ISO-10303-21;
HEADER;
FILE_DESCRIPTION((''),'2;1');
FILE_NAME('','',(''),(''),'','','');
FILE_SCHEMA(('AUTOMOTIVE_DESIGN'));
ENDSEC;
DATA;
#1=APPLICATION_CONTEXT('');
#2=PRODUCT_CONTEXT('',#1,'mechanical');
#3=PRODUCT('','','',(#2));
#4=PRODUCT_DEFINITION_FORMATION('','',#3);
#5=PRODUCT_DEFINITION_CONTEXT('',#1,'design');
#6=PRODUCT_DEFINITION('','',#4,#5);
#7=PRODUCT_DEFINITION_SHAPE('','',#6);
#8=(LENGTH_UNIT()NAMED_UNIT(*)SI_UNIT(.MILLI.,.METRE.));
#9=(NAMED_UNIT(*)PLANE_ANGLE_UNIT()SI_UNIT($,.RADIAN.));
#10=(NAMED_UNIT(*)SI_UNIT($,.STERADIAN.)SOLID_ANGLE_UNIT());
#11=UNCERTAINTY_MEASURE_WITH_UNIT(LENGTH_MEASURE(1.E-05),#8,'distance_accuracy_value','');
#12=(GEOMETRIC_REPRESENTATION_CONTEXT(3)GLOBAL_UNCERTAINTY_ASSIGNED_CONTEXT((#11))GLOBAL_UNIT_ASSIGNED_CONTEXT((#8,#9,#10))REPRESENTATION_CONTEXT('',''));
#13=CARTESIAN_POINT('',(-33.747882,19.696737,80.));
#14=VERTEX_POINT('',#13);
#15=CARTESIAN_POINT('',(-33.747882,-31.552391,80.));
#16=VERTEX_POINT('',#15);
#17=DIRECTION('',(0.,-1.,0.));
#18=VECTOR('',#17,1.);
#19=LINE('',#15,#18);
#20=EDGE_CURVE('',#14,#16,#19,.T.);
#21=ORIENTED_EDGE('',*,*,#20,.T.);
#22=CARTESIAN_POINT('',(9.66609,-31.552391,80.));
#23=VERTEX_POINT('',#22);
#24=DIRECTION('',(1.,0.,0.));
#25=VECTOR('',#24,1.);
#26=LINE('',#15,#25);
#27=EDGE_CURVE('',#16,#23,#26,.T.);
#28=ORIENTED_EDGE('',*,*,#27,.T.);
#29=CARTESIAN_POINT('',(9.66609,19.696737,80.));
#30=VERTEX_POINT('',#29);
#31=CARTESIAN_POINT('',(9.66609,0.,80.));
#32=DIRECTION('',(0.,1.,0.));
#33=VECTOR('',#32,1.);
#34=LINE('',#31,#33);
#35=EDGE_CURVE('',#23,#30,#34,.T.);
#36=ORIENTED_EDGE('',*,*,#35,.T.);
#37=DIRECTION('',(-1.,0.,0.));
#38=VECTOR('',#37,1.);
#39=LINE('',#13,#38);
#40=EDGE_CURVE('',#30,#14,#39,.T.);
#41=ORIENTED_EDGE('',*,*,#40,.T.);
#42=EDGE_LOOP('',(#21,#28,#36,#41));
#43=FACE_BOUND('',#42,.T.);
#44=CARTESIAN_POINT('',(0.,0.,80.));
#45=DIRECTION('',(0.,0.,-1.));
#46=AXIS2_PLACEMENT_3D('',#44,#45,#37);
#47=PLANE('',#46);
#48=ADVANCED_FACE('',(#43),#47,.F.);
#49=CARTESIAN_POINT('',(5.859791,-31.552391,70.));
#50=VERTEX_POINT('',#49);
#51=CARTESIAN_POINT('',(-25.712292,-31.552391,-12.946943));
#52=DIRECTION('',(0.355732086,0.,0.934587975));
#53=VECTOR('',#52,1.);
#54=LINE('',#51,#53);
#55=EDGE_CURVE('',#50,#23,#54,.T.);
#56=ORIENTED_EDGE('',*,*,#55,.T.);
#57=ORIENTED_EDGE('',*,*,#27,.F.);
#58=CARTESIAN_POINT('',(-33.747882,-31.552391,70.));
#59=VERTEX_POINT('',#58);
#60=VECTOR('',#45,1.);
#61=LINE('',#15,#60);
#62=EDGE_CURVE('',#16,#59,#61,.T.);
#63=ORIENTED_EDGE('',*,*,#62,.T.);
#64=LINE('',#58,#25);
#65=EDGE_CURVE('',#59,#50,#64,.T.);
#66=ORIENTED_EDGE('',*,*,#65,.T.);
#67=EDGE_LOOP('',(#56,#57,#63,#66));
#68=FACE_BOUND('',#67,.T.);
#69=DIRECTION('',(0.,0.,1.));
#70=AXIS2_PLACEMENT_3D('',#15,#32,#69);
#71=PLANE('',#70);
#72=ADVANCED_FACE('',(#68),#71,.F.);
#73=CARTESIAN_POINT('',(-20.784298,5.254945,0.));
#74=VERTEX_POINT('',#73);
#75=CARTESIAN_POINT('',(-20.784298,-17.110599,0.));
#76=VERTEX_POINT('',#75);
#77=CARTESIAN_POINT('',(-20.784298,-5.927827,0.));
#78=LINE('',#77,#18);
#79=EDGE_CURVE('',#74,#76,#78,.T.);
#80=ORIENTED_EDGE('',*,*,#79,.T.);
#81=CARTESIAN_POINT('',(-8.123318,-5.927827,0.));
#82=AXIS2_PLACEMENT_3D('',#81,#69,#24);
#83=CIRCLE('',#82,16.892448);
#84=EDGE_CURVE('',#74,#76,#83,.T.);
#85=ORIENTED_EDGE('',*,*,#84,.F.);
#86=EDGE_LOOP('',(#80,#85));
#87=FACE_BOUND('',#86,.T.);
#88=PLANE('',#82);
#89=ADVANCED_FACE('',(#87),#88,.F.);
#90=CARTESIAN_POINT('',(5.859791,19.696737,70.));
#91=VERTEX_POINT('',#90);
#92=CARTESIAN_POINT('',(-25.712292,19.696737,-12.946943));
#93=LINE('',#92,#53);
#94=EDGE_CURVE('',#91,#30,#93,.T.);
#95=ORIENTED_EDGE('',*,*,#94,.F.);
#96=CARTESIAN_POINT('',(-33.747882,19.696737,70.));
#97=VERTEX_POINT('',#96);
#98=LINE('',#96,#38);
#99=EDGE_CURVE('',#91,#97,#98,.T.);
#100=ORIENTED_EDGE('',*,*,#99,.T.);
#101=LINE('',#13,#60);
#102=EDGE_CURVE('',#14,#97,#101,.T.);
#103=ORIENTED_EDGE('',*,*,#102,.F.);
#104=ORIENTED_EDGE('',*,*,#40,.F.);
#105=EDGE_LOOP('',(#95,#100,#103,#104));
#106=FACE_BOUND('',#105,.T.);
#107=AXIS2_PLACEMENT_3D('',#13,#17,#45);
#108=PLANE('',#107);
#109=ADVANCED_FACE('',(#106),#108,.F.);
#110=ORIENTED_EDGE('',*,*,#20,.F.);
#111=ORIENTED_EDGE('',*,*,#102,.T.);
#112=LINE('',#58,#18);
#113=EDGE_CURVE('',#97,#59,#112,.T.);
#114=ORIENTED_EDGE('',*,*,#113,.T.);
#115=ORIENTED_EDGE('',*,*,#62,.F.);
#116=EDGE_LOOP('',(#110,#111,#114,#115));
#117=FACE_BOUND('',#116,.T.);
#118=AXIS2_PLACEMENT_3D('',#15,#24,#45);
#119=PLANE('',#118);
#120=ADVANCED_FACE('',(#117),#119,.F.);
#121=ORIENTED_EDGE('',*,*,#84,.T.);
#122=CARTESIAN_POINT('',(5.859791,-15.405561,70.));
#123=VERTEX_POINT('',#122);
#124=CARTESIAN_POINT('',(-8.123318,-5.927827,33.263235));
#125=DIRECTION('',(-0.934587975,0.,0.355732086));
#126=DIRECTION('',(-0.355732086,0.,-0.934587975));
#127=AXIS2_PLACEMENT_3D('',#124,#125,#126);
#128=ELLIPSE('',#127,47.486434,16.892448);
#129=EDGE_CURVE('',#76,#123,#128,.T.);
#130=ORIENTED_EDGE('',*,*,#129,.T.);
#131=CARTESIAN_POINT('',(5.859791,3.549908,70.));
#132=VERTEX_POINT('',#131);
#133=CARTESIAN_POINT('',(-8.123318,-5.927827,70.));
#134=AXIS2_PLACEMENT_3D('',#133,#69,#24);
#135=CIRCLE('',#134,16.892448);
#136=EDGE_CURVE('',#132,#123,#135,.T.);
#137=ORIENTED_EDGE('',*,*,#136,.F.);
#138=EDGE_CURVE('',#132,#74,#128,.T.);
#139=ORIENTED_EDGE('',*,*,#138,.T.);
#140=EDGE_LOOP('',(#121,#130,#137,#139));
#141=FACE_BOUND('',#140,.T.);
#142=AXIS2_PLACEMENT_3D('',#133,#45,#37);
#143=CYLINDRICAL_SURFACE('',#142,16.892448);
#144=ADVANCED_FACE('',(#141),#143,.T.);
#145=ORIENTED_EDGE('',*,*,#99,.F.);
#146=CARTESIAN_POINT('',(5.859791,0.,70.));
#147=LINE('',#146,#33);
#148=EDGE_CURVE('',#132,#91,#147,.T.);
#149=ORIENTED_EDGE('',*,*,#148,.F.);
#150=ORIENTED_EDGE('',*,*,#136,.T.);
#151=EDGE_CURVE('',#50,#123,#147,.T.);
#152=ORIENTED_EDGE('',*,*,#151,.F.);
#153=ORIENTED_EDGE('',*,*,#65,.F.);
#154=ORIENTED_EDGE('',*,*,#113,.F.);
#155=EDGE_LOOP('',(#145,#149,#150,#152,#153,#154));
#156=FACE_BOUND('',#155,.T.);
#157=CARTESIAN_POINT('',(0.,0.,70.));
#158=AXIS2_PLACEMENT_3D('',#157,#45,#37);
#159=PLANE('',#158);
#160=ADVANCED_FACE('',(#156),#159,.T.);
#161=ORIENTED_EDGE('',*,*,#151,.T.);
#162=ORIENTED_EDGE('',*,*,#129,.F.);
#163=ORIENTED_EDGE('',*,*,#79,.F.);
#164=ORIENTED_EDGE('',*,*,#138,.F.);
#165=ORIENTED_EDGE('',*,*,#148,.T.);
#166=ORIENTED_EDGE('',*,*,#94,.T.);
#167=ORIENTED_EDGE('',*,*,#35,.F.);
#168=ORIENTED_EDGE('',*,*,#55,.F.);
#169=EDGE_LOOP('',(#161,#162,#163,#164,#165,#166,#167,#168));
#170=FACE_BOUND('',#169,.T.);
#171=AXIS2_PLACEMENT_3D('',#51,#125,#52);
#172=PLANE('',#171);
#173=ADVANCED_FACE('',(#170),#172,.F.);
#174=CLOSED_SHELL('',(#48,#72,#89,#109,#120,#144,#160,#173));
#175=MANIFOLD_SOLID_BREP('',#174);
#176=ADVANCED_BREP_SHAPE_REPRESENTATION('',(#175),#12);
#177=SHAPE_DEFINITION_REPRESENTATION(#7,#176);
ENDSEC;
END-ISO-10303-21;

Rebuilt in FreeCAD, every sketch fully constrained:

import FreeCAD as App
import Part
import Sketcher


def add_polygon(sketch, points):
    """Adds a closed chain of lines whose ends are joined by coincident constraints."""
    first, n = sketch.GeometryCount, len(points)
    for a, b in zip(points, points[1:] + points[:1]):
        sketch.addGeometry(Part.LineSegment(App.Vector(*a, 0), App.Vector(*b, 0)), False)
    for i in range(n):
        sketch.addConstraint(Sketcher.Constraint("Coincident", first + i, 2, first + (i + 1) % n, 1))

doc = App.newDocument("Part")
params = doc.addObject("Spreadsheet::Sheet", "Params")
for row, (alias, value) in enumerate([
    ("pad1_length", "70 mm"),
    ("pad2_length", "10 mm"),
], start=1):
    params.set(f"A{row}", alias)
    params.set(f"B{row}", "=" + value)
    params.setAlias(f"B{row}", alias)

body = doc.addObject("PartDesign::Body", "Body")

sketch1 = body.newObject("Sketcher::SketchObject", "Sketch")
sketch1.AttachmentSupport = (doc.getObject("XY_Plane"), [""])
sketch1.MapMode = "FlatFace"
sketch1.addGeometry(Part.Circle(App.Vector(-8, -6, 0), App.Vector(0, 0, 1), 17), False)
sketch1.addConstraint([
    Sketcher.Constraint("Diameter", 0, 33.784897),
    Sketcher.Constraint("DistanceX", 0, 3, -1, 1, 8.123318),
    Sketcher.Constraint("DistanceY", 0, 3, -1, 1, 5.927827),
])
pad1 = body.newObject("PartDesign::Pad", "Pad")
pad1.Profile = sketch1
pad1.setExpression("Length", "Params.pad1_length")

sketch2 = body.newObject("Sketcher::SketchObject", "Sketch001")
sketch2.AttachmentSupport = (doc.getObject("XY_Plane"), [""])
sketch2.MapMode = "FlatFace"
sketch2.AttachmentOffset = App.Placement(App.Vector(0, 0, 70), App.Rotation())
add_polygon(sketch2, [(-34, 20), (-34, -32), (18, -32), (18, 20)])
sketch2.addConstraint([
    Sketcher.Constraint("Vertical", 0),
    Sketcher.Constraint("Horizontal", 1),
    Sketcher.Constraint("Vertical", 2),
    Sketcher.Constraint("Horizontal", 3),
    Sketcher.Constraint("Equal", 3, 0),
    Sketcher.Constraint("DistanceX", 1, 1, 1, 2, 51.249128),
    Sketcher.Constraint("DistanceY", 0, 2, -1, 1, 31.552391),
    Sketcher.Constraint("DistanceX", 0, 2, -1, 1, 33.747882),
])
pad2 = body.newObject("PartDesign::Pad", "Pad001")
pad2.Profile = sketch2
pad2.setExpression("Length", "Params.pad2_length")

sketch3 = body.newObject("Sketcher::SketchObject", "Sketch002")
sketch3.AttachmentSupport = (doc.getObject("XZ_Plane"), [""])
sketch3.MapMode = "FlatFace"
add_polygon(sketch3, [(-26, -13), (19, 104), (40, -9)])
sketch3.addConstraint([
    Sketcher.Constraint("DistanceY", 2, 2, 0, 2, 117.367098),
    Sketcher.Constraint("Distance", 0, 125.581648),
    Sketcher.Constraint("Distance", 2, 66.175322),
    Sketcher.Constraint("DistanceX", -1, 1, 0, 2, 18.96113),
    Sketcher.Constraint("DistanceY", 1, 2, -1, 1, 8.61046),
    Sketcher.Constraint("Distance", 1, 115.031105),
])
pocket1 = body.newObject("PartDesign::Pocket", "Pocket")
pocket1.Profile = sketch3
pocket1.Type = "ThroughAll"
pocket1.Midplane = True

doc.recompute()
